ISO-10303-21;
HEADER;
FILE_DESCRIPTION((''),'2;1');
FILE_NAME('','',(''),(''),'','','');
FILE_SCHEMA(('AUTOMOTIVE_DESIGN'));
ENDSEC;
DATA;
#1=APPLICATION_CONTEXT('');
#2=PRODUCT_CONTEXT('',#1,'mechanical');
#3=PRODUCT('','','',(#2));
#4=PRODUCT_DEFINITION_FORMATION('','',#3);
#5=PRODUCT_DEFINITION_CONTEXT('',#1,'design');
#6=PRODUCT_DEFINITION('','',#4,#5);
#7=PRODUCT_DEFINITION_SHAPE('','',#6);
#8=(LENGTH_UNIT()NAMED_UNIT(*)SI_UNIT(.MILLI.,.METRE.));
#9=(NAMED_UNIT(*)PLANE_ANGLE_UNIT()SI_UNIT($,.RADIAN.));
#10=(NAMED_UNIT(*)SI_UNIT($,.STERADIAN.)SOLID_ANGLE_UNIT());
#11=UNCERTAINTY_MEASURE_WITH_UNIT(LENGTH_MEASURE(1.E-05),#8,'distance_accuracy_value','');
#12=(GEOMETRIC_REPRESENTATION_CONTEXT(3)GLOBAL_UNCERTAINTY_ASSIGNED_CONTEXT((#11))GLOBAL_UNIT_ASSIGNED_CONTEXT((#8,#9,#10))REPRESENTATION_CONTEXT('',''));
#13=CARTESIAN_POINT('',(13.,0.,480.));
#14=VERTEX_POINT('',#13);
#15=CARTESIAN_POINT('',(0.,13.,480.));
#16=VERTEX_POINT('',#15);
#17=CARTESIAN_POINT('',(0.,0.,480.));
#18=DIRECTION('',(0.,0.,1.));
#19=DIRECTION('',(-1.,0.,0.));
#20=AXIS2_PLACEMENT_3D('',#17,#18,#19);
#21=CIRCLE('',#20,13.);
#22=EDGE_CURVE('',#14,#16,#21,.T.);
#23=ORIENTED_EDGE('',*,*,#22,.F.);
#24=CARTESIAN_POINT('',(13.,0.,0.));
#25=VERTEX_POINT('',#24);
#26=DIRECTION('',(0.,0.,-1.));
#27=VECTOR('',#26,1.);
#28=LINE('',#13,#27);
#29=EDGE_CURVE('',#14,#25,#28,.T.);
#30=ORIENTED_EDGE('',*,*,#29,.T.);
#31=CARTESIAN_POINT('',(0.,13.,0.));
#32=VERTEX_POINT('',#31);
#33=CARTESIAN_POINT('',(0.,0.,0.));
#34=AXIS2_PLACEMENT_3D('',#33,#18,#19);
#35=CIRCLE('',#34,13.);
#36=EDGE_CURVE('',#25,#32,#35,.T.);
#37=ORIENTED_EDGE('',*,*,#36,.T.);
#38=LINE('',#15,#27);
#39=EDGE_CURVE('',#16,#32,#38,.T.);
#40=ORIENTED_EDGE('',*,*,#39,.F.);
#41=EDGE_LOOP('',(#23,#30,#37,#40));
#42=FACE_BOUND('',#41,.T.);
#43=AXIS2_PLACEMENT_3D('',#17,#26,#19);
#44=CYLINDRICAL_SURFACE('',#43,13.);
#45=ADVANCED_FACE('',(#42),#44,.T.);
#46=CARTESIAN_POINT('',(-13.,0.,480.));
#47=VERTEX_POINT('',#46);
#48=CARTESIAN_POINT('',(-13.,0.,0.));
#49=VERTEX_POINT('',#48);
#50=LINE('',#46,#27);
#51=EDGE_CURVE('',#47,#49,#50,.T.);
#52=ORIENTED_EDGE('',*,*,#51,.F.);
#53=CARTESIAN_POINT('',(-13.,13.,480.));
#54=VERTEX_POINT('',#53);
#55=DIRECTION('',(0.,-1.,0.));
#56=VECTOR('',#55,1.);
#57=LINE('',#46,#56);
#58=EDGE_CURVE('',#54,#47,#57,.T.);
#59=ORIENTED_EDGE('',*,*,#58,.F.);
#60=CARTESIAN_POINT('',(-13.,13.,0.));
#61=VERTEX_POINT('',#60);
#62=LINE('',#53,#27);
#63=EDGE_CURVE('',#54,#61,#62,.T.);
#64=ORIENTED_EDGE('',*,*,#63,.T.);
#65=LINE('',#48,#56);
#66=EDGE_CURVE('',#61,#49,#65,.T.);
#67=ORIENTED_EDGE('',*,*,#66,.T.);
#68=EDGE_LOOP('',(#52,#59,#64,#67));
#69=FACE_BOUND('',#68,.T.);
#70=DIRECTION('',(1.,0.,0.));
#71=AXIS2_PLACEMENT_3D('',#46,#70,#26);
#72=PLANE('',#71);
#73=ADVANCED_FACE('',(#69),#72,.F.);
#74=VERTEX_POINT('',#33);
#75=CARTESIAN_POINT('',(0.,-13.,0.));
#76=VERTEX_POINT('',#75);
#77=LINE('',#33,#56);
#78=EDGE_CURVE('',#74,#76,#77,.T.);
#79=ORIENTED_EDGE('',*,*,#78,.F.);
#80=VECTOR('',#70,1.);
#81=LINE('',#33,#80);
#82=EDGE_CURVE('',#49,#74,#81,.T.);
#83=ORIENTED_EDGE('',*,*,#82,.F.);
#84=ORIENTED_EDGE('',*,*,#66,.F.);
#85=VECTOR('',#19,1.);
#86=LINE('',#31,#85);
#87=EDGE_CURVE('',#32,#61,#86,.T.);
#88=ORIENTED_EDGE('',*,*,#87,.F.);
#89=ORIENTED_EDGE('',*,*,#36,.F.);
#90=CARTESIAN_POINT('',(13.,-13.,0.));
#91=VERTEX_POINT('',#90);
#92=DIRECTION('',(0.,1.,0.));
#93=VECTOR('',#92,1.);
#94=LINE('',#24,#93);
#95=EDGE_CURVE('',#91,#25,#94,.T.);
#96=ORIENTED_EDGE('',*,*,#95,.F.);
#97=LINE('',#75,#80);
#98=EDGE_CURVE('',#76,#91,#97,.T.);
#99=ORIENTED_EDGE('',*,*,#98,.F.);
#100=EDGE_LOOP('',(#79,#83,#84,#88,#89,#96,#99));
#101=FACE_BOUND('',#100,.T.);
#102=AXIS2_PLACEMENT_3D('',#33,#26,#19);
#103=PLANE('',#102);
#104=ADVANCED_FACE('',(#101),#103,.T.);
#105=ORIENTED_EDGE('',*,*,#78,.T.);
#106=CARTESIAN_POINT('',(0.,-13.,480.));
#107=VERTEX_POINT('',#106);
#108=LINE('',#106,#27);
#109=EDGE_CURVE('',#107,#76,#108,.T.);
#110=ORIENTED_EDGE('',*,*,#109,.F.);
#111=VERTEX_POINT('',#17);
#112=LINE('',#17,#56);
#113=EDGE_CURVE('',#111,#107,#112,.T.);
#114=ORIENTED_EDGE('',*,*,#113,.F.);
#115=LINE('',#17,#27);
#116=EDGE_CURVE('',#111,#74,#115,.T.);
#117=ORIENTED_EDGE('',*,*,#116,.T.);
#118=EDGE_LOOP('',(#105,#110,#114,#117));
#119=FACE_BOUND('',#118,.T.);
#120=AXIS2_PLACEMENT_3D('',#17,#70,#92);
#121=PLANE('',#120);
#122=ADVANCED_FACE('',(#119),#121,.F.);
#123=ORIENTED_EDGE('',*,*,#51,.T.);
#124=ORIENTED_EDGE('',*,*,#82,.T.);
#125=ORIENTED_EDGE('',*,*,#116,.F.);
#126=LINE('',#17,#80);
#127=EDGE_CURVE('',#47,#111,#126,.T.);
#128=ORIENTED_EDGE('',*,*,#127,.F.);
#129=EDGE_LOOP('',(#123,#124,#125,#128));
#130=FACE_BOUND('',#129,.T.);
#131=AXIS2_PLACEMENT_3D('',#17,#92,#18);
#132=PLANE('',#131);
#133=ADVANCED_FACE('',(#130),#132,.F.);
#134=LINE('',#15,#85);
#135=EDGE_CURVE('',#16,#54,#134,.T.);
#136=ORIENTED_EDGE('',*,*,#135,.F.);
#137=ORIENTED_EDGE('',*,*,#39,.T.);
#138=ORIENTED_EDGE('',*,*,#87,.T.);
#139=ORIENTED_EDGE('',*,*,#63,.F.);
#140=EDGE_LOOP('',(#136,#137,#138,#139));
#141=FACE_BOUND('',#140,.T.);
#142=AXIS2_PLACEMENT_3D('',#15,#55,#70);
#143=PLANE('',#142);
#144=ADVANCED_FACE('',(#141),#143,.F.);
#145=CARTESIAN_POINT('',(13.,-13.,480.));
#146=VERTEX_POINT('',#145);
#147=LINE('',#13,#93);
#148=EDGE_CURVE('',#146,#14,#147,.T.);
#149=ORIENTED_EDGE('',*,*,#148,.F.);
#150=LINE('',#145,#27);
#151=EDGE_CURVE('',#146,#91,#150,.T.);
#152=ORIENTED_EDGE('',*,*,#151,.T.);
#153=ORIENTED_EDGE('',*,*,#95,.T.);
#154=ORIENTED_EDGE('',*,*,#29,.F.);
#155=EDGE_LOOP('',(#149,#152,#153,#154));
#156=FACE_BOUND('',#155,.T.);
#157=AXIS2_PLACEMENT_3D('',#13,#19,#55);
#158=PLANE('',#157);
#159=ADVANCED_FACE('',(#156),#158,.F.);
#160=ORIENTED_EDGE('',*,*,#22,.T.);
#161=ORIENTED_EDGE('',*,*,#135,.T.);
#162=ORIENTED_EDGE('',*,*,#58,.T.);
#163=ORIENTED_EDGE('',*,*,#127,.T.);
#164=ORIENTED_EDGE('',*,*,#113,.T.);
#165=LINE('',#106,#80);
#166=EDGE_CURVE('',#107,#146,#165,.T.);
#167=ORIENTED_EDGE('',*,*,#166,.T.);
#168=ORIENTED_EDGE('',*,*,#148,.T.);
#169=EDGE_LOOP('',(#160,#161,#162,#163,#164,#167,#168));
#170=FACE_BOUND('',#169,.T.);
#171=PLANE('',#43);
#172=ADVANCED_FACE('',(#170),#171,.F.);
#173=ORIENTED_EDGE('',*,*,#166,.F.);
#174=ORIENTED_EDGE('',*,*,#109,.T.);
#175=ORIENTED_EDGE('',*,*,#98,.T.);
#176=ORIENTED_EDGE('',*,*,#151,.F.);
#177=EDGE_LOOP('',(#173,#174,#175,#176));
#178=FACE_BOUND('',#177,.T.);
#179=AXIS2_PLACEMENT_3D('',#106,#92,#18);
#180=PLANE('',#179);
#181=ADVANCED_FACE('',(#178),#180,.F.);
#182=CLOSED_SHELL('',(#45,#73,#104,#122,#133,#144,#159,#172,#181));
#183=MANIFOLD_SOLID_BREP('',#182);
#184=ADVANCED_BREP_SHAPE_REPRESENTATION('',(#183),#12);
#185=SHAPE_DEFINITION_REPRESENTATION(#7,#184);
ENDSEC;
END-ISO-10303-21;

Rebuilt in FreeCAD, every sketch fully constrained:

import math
import FreeCAD as App
import Part
import Sketcher

V = App.Vector

doc = App.newDocument("Part")
body = doc.addObject("PartDesign::Body", "Body")

# Sketch on XY plane
sketch1 = body.newObject("Sketcher::SketchObject", "Sketch")
sketch1.AttachmentSupport = (doc.getObject("XY_Plane"), [""])
sketch1.MapMode = "FlatFace"
sketch1.addGeometry(Part.LineSegment(V(-13, 0, 0), V(0, 0, 0)), False)
sketch1.addGeometry(Part.LineSegment(V(0, 0, 0), V(0, -13, 0)), False)
sketch1.addGeometry(Part.LineSegment(V(0, -13, 0), V(13, -13, 0)), False)
sketch1.addGeometry(Part.LineSegment(V(13, -13, 0), V(13, 0, 0)), False)
sketch1.addGeometry(Part.ArcOfCircle(Part.Circle(V(0, 0, 0), V(0, 0, 1), 13), math.radians(0), math.radians(90)), False)
sketch1.addGeometry(Part.LineSegment(V(0, 13, 0), V(-13, 13, 0)), False)
sketch1.addGeometry(Part.LineSegment(V(-13, 13, 0), V(-13, 0, 0)), False)
sketch1.addConstraint(Sketcher.Constraint("Coincident", 0, 2, 1, 1))
sketch1.addConstraint(Sketcher.Constraint("Coincident", 1, 2, 2, 1))
sketch1.addConstraint(Sketcher.Constraint("Coincident", 2, 2, 3, 1))
sketch1.addConstraint(Sketcher.Constraint("Tangent", 3, 2, 4, 1))
sketch1.addConstraint(Sketcher.Constraint("Tangent", 4, 2, 5, 1))
sketch1.addConstraint(Sketcher.Constraint("Coincident", 5, 2, 6, 1))
sketch1.addConstraint(Sketcher.Constraint("Coincident", 6, 2, 0, 1))
sketch1.addConstraint(Sketcher.Constraint("Horizontal", 0))
sketch1.addConstraint(Sketcher.Constraint("Vertical", 1))
sketch1.addConstraint(Sketcher.Constraint("Horizontal", 2))
sketch1.addConstraint(Sketcher.Constraint("Vertical", 3))
sketch1.addConstraint(Sketcher.Constraint("Horizontal", 5))
sketch1.addConstraint(Sketcher.Constraint("Vertical", 6))
sketch1.addConstraint(Sketcher.Constraint("Coincident", 4, 3, -1, 1))
sketch1.addConstraint(Sketcher.Constraint("Coincident", 0, 2, -1, 1))
sketch1.addConstraint(Sketcher.Constraint("Symmetric", 2, 2, 5, 2, -1, 1))
sketch1.addConstraint(Sketcher.Constraint("Radius", 4, 13.0))
pad1 = body.newObject("PartDesign::Pad", "Pad")
pad1.Profile = sketch1
pad1.Length = 480

doc.recompute()
